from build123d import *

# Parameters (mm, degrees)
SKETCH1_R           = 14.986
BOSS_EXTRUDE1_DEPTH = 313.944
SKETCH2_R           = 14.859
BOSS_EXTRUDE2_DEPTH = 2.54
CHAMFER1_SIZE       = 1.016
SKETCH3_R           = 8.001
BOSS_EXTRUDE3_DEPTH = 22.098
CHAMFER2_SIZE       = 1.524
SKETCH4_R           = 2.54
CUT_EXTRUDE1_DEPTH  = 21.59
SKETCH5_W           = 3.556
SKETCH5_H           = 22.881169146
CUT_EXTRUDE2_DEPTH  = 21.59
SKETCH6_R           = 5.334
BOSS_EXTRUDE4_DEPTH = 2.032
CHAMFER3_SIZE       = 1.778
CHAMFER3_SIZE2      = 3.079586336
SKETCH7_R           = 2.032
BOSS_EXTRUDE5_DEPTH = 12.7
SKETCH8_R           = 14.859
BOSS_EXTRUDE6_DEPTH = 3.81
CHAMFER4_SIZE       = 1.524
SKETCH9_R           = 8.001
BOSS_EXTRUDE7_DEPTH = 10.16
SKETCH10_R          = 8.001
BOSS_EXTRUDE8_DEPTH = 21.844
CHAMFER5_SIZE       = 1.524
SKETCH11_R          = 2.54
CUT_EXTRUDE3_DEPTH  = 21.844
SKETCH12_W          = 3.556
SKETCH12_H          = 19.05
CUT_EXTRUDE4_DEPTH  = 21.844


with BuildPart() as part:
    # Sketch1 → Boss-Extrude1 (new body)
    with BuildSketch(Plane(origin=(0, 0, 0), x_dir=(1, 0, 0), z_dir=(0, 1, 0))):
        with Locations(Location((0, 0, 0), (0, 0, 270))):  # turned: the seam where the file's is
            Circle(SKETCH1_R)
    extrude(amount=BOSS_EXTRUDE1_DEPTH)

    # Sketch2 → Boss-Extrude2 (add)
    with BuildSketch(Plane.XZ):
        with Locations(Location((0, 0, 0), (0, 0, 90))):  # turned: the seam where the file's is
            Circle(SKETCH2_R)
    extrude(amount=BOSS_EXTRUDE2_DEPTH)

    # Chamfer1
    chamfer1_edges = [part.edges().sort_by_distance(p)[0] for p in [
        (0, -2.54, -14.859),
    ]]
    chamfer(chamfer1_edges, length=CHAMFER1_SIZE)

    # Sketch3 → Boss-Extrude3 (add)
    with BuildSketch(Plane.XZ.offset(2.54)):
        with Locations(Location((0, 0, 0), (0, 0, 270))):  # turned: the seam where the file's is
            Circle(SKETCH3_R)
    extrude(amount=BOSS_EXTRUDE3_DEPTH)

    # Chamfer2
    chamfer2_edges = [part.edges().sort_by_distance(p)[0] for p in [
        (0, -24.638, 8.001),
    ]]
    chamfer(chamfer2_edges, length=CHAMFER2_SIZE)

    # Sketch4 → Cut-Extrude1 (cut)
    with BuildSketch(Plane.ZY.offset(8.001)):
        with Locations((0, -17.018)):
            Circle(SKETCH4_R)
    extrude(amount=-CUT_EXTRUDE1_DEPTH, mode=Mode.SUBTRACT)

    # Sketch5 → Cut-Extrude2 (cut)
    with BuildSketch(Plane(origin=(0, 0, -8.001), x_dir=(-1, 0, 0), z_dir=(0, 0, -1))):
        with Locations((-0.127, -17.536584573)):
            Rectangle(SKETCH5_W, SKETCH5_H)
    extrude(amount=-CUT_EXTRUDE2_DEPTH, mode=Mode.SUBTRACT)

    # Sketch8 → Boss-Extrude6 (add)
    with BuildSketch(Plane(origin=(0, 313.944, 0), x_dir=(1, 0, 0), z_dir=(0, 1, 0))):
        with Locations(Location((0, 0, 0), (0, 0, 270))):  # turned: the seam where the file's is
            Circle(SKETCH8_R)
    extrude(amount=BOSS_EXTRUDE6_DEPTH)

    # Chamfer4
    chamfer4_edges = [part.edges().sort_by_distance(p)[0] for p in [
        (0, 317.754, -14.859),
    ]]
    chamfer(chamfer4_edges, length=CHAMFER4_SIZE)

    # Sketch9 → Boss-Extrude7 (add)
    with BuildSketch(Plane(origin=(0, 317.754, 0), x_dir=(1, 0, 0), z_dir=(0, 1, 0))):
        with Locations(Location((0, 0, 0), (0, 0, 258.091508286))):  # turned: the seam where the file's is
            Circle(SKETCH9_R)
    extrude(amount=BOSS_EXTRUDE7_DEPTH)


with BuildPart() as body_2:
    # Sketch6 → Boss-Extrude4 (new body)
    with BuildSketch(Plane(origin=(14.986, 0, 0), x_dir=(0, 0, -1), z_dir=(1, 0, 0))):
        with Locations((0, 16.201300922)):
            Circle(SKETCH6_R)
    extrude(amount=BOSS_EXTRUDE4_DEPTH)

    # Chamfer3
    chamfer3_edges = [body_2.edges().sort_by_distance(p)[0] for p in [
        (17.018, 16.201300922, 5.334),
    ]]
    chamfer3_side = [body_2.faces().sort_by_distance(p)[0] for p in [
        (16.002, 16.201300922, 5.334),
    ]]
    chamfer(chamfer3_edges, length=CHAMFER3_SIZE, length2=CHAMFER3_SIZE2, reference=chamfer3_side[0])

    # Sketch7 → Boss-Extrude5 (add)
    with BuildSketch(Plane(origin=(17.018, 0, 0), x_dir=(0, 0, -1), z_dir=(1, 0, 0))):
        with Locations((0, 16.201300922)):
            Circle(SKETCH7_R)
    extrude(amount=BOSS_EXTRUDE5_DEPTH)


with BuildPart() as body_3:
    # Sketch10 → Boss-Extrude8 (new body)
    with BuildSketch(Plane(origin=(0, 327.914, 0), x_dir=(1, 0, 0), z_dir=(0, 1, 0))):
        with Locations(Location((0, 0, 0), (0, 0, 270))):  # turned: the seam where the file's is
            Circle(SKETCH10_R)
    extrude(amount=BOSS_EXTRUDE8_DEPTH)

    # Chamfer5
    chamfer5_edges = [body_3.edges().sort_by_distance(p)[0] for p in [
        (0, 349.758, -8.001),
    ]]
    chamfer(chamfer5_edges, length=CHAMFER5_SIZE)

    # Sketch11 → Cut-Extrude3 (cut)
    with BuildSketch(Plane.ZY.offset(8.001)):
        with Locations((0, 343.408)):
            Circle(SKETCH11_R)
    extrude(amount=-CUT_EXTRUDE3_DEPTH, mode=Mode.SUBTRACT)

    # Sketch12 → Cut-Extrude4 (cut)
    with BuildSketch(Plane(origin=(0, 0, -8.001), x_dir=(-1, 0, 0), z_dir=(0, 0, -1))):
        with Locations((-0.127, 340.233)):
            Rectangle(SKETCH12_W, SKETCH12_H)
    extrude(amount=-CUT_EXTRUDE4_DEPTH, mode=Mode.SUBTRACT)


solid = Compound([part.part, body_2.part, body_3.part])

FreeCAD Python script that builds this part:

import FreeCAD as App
import Part
import Sketcher
Q = App.Units.Quantity


def edges_at(feature, points):
    """Names of the edges that pass closest to the given points."""
    edges = feature.Shape.Edges
    near = lambda p: min(range(len(edges)), key=lambda i: edges[i].distToShape(Part.Vertex(*p))[0])
    return sorted({f"Edge{near(p) + 1}" for p in points})

doc = App.newDocument("Part")
body = doc.addObject("PartDesign::Body", "Body")

sketch1 = body.newObject("Sketcher::SketchObject", "Sketch")
sketch1.AttachmentSupport = (doc.getObject("XZ_Plane"), [""])
sketch1.MapMode = "FlatFace"
sketch1.addGeometry(Part.Circle(App.Vector(0, 0, 0), App.Vector(0, 0, 1), 15), False)
sketch1.addConstraint([
    Sketcher.Constraint("Coincident", 0, 3, -1, 1),
    Sketcher.Constraint("Diameter", 0, Q("1.18 in")),
])
pad1 = body.newObject("PartDesign::Pad", "Pad")
pad1.Profile = sketch1
pad1.Length = Q("12.36 in")
pad1.Reversed = True

sketch2 = body.newObject("Sketcher::SketchObject", "Sketch001")
sketch2.AttachmentSupport = (doc.getObject("XZ_Plane"), [""])
sketch2.MapMode = "FlatFace"
sketch2.addGeometry(Part.Circle(App.Vector(0, 0, 0), App.Vector(0, 0, 1), 15), False)
sketch2.addConstraint([
    Sketcher.Constraint("Coincident", 0, 3, -1, 1),
    Sketcher.Constraint("Diameter", 0, Q("1.17 in")),
])
pad2 = body.newObject("PartDesign::Pad", "Pad001")
pad2.Profile = sketch2
pad2.Length = Q("0.1 in")
doc.recompute()

chamfer = body.newObject("PartDesign::Chamfer", "Chamfer")
chamfer.Base = (pad2, edges_at(pad2, [(0, -2.54, -14.859)]))
chamfer.Size = Q("0.04 in")

sketch3 = body.newObject("Sketcher::SketchObject", "Sketch002")
sketch3.AttachmentSupport = (doc.getObject("XZ_Plane"), [""])
sketch3.MapMode = "FlatFace"
sketch3.AttachmentOffset = App.Placement(App.Vector(0, 0, 0.1 * 25.4), App.Rotation())
sketch3.addGeometry(Part.Circle(App.Vector(0, 0, 0), App.Vector(0, 0, 1), 8), False)
sketch3.addConstraint([
    Sketcher.Constraint("Coincident", 0, 3, -1, 1),
    Sketcher.Constraint("Diameter", 0, Q("0.63 in")),
])
pad3 = body.newObject("PartDesign::Pad", "Pad002")
pad3.Profile = sketch3
pad3.Length = Q("0.87 in")
doc.recompute()

chamfer2 = body.newObject("PartDesign::Chamfer", "Chamfer001")
chamfer2.Base = (pad3, edges_at(pad3, [(0, -24.638, 8.001)]))
chamfer2.Size = Q("0.06 in")

sketch4 = body.newObject("Sketcher::SketchObject", "Sketch003")
sketch4.AttachmentSupport = (doc.getObject("YZ_Plane"), [""])
sketch4.MapMode = "FlatFace"
sketch4.AttachmentOffset = App.Placement(App.Vector(0, 0, -0.315 * 25.4), App.Rotation())
sketch4.addGeometry(Part.Circle(App.Vector(-17, 0, 0), App.Vector(0, 0, 1), 2.5), False)
sketch4.addConstraint([
    Sketcher.Constraint("PointOnObject", 0, 3, -1),
    Sketcher.Constraint("Diameter", 0, Q("0.2 in")),
    Sketcher.Constraint("DistanceX", 0, 3, -1, 1, Q("0.67 in")),
])
pocket1 = body.newObject("PartDesign::Pocket", "Pocket")
pocket1.Profile = sketch4
pocket1.Length = Q("0.85 in")
pocket1.Reversed = True

sketch5 = body.newObject("Sketcher::SketchObject", "Sketch004")
sketch5.AttachmentSupport = (doc.getObject("XY_Plane"), [""])
sketch5.MapMode = "FlatFace"
sketch5.AttachmentOffset = App.Placement(App.Vector(0, 0, -0.315 * 25.4), App.Rotation())
sketch5.addGeometry([
    Part.LineSegment(App.Vector(1.9, -6.1, 0), App.Vector(1.9, -29, 0)),
    Part.LineSegment(App.Vector(1.9, -29, 0), App.Vector(-1.7, -29, 0)),
    Part.LineSegment(App.Vector(-1.7, -29, 0), App.Vector(-1.7, -6.1, 0)),
    Part.LineSegment(App.Vector(-1.7, -6.1, 0), App.Vector(1.9, -6.1, 0)),
], False)
sketch5.addConstraint([
    Sketcher.Constraint("Coincident", 0, 2, 1, 1),
    Sketcher.Constraint("Coincident", 1, 2, 2, 1),
    Sketcher.Constraint("Coincident", 2, 2, 3, 1),
    Sketcher.Constraint("Coincident", 3, 2, 0, 1),
    Sketcher.Constraint("Vertical", 0),
    Sketcher.Constraint("Horizontal", 1),
    Sketcher.Constraint("Vertical", 2),
    Sketcher.Constraint("Horizontal", 3),
    Sketcher.Constraint("DistanceX", 1, 2, 1, 1, Q("0.14 in")),
    Sketcher.Constraint("DistanceY", 2, 2, -1, 1, Q("0.24 in")),
    Sketcher.Constraint("DistanceX", -1, 1, 0, 2, Q("0.075 in")),
    Sketcher.Constraint("DistanceY", 0, 2, 0, 1, 22.881169),
])
pocket2 = body.newObject("PartDesign::Pocket", "Pocket001")
pocket2.Profile = sketch5
pocket2.Length = Q("0.85 in")
pocket2.Reversed = True

sketch6 = body.newObject("Sketcher::SketchObject", "Sketch005")
sketch6.AttachmentSupport = (doc.getObject("XZ_Plane"), [""])
sketch6.MapMode = "FlatFace"
sketch6.AttachmentOffset = App.Placement(App.Vector(0, 0, -12.36 * 25.4), App.Rotation())
sketch6.addGeometry(Part.Circle(App.Vector(0, 0, 0), App.Vector(0, 0, 1), 15), False)
sketch6.addConstraint([
    Sketcher.Constraint("Coincident", 0, 3, -1, 1),
    Sketcher.Constraint("Diameter", 0, Q("1.17 in")),
])
pad4 = body.newObject("PartDesign::Pad", "Pad003")
pad4.Profile = sketch6
pad4.Length = Q("0.15 in")
pad4.Reversed = True
doc.recompute()

chamfer3 = body.newObject("PartDesign::Chamfer", "Chamfer002")
chamfer3.Base = (pad4, edges_at(pad4, [(0, 317.754, -14.859)]))
chamfer3.Size = Q("0.06 in")

sketch7 = body.newObject("Sketcher::SketchObject", "Sketch006")
sketch7.AttachmentSupport = (doc.getObject("XZ_Plane"), [""])
sketch7.MapMode = "FlatFace"
sketch7.AttachmentOffset = App.Placement(App.Vector(0, 0, -12.51 * 25.4), App.Rotation())
sketch7.addGeometry(Part.Circle(App.Vector(0, 0, 0), App.Vector(0, 0, 1), 8), False)
sketch7.addConstraint([
    Sketcher.Constraint("Coincident", 0, 3, -1, 1),
    Sketcher.Constraint("Diameter", 0, Q("0.63 in")),
])
pad5 = body.newObject("PartDesign::Pad", "Pad004")
pad5.Profile = sketch7
pad5.Length = Q("0.4 in")
pad5.Reversed = True
body2 = doc.addObject("PartDesign::Body", "Body001")

sketch8 = body2.newObject("Sketcher::SketchObject", "Sketch007")
sketch8.AttachmentSupport = (doc.getObject("YZ_Plane001"), [""])
sketch8.MapMode = "FlatFace"
sketch8.AttachmentOffset = App.Placement(App.Vector(0, 0, 0.59 * 25.4), App.Rotation())
sketch8.addGeometry(Part.Circle(App.Vector(16, 0, 0), App.Vector(0, 0, 1), 5), False)
sketch8.addConstraint([
    Sketcher.Constraint("PointOnObject", 0, 3, -1),
    Sketcher.Constraint("Diameter", 0, Q("0.42 in")),
    Sketcher.Constraint("DistanceX", -1, 1, 0, 3, 16.201301),
])
pad6 = body2.newObject("PartDesign::Pad", "Pad005")
pad6.Profile = sketch8
pad6.Length = Q("0.08 in")
doc.recompute()

chamfer4 = body2.newObject("PartDesign::Chamfer", "Chamfer003")
chamfer4.Base = (pad6, edges_at(pad6, [(17.018, 16.201, 5.334)]))
chamfer4.ChamferType = "Two distances"
chamfer4.Size = Q("0.07 in")
chamfer4.Size2 = 3.079586

sketch9 = body2.newObject("Sketcher::SketchObject", "Sketch008")
sketch9.AttachmentSupport = (doc.getObject("YZ_Plane001"), [""])
sketch9.MapMode = "FlatFace"
sketch9.AttachmentOffset = App.Placement(App.Vector(0, 0, 0.67 * 25.4), App.Rotation())
sketch9.addGeometry(Part.Circle(App.Vector(16.2, 0, 0), App.Vector(0, 0, 1), 2), False)
sketch9.addConstraint([
    Sketcher.Constraint("PointOnObject", 0, 3, -1),
    Sketcher.Constraint("Diameter", 0, Q("0.16 in")),
    Sketcher.Constraint("DistanceX", -1, 1, 0, 3, 16.201301),
])
pad7 = body2.newObject("PartDesign::Pad", "Pad006")
pad7.Profile = sketch9
pad7.Length = Q("0.5 in")
body3 = doc.addObject("PartDesign::Body", "Body002")

sketch10 = body3.newObject("Sketcher::SketchObject", "Sketch009")
sketch10.AttachmentSupport = (doc.getObject("XZ_Plane002"), [""])
sketch10.MapMode = "FlatFace"
sketch10.AttachmentOffset = App.Placement(App.Vector(0, 0, -12.91 * 25.4), App.Rotation())
sketch10.addGeometry(Part.Circle(App.Vector(0, 0, 0), App.Vector(0, 0, 1), 8), False)
sketch10.addConstraint([
    Sketcher.Constraint("Coincident", 0, 3, -1, 1),
    Sketcher.Constraint("Diameter", 0, Q("0.63 in")),
])
pad8 = body3.newObject("PartDesign::Pad", "Pad007")
pad8.Profile = sketch10
pad8.Length = Q("0.86 in")
pad8.Reversed = True
doc.recompute()

chamfer5 = body3.newObject("PartDesign::Chamfer", "Chamfer004")
chamfer5.Base = (pad8, edges_at(pad8, [(0, 349.758, -8.001)]))
chamfer5.Size = Q("0.06 in")

sketch11 = body3.newObject("Sketcher::SketchObject", "Sketch010")
sketch11.AttachmentSupport = (doc.getObject("YZ_Plane002"), [""])
sketch11.MapMode = "FlatFace"
sketch11.AttachmentOffset = App.Placement(App.Vector(0, 0, -0.315 * 25.4), App.Rotation())
sketch11.addGeometry(Part.Circle(App.Vector(343.4, 0, 0), App.Vector(0, 0, 1), 2.5), False)
sketch11.addConstraint([
    Sketcher.Constraint("PointOnObject", 0, 3, -1),
    Sketcher.Constraint("Diameter", 0, Q("0.2 in")),
    Sketcher.Constraint("DistanceX", -1, 1, 0, 3, Q("13.52 in")),
])
pocket3 = body3.newObject("PartDesign::Pocket", "Pocket002")
pocket3.Profile = sketch11
pocket3.Length = Q("0.86 in")
pocket3.Reversed = True

sketch12 = body3.newObject("Sketcher::SketchObject", "Sketch011")
sketch12.AttachmentSupport = (doc.getObject("XY_Plane002"), [""])
sketch12.MapMode = "FlatFace"
sketch12.AttachmentOffset = App.Placement(App.Vector(0, 0, -0.315 * 25.4), App.Rotation())
sketch12.addGeometry([
    Part.LineSegment(App.Vector(1.9, 349.8, 0), App.Vector(1.9, 330.7, 0)),
    Part.LineSegment(App.Vector(1.9, 330.7, 0), App.Vector(-1.7, 330.7, 0)),
    Part.LineSegment(App.Vector(-1.7, 330.7, 0), App.Vector(-1.7, 349.8, 0)),
    Part.LineSegment(App.Vector(-1.7, 349.8, 0), App.Vector(1.9, 349.8, 0)),
], False)
sketch12.addConstraint([
    Sketcher.Constraint("Coincident", 0, 2, 1, 1),
    Sketcher.Constraint("Coincident", 1, 2, 2, 1),
    Sketcher.Constraint("Coincident", 2, 2, 3, 1),
    Sketcher.Constraint("Coincident", 3, 2, 0, 1),
    Sketcher.Constraint("Vertical", 0),
    Sketcher.Constraint("Horizontal", 1),
    Sketcher.Constraint("Vertical", 2),
    Sketcher.Constraint("Horizontal", 3),
    Sketcher.Constraint("DistanceX", 1, 2, 1, 1, Q("0.14 in")),
    Sketcher.Constraint("DistanceY", 0, 2, 0, 1, Q("0.75 in")),
    Sketcher.Constraint("DistanceY", -1, 1, 0, 2, Q("13.02 in")),
    Sketcher.Constraint("DistanceX", -1, 1, 0, 2, Q("0.075 in")),
])
pocket4 = body3.newObject("PartDesign::Pocket", "Pocket003")
pocket4.Profile = sketch12
pocket4.Length = Q("0.86 in")
pocket4.Reversed = True

doc.recompute()
